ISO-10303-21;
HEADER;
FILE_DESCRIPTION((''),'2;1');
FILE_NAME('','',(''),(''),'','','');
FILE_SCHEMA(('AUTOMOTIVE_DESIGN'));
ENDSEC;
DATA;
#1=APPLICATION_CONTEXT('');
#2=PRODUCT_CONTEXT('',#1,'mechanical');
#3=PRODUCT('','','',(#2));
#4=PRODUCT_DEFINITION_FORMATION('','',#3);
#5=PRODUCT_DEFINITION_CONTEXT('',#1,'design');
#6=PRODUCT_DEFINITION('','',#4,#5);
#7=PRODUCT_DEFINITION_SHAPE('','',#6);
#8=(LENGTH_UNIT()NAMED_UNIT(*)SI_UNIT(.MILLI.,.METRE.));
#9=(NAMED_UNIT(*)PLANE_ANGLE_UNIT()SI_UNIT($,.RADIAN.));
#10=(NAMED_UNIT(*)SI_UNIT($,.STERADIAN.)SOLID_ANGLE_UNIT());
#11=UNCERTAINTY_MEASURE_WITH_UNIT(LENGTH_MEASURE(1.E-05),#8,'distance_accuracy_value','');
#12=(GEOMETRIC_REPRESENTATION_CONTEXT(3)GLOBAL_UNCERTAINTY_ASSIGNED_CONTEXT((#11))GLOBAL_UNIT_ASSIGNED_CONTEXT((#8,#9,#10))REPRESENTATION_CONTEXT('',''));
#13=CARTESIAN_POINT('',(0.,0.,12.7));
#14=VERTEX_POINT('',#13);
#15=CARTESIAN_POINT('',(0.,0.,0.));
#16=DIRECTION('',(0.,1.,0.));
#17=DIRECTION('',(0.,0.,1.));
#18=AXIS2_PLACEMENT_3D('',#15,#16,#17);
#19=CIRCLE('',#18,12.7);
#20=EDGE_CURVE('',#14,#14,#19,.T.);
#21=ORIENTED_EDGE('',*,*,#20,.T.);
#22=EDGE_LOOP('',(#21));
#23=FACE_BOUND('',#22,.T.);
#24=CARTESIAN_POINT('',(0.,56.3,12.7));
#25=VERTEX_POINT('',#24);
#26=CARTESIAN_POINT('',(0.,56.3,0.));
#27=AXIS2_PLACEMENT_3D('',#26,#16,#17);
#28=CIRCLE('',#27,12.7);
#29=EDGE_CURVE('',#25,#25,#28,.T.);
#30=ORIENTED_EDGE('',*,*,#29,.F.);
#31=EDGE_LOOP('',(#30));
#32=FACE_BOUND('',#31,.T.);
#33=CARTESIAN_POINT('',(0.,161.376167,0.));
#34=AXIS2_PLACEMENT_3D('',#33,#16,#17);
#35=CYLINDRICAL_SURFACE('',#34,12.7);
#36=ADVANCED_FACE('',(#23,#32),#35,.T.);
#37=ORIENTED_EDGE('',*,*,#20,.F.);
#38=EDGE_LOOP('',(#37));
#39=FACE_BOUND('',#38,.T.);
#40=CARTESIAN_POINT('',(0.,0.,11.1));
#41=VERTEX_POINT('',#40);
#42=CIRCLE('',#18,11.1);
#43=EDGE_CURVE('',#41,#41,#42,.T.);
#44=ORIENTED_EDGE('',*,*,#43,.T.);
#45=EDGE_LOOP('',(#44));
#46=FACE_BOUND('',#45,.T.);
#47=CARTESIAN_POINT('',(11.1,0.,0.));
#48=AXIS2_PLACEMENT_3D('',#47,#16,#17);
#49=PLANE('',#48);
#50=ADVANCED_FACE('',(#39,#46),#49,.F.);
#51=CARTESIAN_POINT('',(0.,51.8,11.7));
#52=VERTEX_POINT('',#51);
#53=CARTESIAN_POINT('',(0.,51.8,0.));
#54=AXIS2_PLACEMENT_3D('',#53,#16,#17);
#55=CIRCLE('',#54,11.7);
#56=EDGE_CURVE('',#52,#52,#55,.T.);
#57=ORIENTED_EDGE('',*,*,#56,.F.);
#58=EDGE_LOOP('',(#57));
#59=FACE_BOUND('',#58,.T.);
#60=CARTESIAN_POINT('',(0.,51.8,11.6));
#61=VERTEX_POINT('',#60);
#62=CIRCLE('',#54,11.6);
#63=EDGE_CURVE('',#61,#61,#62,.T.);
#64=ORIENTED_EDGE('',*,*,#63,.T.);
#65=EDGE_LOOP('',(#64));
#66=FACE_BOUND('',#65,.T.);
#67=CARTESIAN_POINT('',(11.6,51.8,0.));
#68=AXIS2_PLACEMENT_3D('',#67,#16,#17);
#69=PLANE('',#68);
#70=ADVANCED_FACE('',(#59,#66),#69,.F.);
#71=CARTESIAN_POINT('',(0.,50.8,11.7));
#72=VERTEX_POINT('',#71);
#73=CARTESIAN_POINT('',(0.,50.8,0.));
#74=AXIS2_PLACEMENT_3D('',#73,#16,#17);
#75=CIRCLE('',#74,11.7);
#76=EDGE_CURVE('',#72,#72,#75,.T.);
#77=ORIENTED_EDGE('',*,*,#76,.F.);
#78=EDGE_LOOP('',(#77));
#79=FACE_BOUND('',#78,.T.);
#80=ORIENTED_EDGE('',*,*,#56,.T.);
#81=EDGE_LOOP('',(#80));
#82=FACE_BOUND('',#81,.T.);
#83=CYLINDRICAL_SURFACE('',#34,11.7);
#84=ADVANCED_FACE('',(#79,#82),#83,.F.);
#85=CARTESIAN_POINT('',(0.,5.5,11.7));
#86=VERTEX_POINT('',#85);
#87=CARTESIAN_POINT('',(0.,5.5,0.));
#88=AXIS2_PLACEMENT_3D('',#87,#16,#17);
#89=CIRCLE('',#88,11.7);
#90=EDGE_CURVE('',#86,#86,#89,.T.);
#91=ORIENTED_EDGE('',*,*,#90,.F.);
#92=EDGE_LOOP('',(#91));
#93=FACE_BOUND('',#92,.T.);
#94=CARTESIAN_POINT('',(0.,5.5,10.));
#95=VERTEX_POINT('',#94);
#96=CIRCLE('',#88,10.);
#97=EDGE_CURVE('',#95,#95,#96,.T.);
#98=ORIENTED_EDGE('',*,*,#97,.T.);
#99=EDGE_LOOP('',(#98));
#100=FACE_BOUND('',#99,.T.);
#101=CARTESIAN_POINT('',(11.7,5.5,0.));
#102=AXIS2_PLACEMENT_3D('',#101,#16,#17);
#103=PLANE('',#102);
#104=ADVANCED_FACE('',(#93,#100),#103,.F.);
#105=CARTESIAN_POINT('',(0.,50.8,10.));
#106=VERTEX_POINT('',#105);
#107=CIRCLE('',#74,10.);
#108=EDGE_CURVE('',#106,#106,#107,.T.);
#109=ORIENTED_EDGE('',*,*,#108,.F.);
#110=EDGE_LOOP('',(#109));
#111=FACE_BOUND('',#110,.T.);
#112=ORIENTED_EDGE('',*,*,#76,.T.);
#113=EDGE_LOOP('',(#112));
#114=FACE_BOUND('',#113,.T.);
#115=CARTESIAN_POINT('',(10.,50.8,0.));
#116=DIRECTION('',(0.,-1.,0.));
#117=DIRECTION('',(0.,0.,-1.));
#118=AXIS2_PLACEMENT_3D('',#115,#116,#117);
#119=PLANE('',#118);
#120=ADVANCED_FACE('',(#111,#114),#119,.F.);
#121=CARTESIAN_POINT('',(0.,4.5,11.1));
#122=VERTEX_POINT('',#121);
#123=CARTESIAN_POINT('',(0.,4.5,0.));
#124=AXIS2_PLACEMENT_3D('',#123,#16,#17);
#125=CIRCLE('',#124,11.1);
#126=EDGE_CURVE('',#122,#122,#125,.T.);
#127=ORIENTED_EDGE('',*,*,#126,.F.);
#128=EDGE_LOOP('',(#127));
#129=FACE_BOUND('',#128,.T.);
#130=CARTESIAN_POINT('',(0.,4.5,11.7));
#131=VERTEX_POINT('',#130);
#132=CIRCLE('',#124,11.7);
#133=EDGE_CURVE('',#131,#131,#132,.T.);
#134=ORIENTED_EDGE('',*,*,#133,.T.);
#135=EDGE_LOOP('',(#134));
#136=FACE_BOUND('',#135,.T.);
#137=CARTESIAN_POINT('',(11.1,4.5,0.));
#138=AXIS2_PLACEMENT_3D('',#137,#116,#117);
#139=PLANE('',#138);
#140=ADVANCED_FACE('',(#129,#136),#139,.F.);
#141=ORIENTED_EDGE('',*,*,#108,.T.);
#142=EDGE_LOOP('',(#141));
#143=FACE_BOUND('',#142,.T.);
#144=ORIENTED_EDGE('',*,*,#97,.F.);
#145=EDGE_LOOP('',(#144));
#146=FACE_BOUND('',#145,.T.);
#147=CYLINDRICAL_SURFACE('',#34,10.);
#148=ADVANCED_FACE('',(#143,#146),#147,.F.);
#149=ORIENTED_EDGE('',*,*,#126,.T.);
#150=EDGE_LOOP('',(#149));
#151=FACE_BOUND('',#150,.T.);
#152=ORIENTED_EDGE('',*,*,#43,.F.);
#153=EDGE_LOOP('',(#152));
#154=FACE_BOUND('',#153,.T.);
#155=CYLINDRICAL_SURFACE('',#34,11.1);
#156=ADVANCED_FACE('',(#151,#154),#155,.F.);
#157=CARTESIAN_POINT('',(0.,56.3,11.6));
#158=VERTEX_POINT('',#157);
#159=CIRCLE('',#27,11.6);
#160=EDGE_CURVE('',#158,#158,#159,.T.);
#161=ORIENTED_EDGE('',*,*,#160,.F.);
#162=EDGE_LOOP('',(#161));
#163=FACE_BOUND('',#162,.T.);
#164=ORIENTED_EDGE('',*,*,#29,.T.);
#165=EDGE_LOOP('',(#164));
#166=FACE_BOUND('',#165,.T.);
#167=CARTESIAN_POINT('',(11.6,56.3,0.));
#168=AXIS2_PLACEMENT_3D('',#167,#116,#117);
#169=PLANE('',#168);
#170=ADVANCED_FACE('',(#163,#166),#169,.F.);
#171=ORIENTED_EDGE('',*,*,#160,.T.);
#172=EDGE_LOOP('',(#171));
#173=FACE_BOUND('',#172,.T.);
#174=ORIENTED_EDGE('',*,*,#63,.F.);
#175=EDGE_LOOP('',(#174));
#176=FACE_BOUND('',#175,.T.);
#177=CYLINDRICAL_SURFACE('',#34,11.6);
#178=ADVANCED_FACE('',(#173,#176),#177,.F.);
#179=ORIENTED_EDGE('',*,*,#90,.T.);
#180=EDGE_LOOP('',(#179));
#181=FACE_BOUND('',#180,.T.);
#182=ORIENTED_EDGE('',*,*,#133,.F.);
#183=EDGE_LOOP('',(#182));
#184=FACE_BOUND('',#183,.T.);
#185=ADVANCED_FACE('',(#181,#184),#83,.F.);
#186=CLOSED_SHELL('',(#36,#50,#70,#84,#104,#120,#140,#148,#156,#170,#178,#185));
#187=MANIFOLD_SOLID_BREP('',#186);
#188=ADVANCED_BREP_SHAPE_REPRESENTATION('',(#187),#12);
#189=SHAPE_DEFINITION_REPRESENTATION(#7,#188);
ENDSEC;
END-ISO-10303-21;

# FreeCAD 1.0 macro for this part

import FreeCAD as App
import Part
import Sketcher


def add_polygon(sketch, points):
    """Adds a closed chain of lines whose ends are joined by coincident constraints."""
    first, n = sketch.GeometryCount, len(points)
    for a, b in zip(points, points[1:] + points[:1]):
        sketch.addGeometry(Part.LineSegment(App.Vector(*a, 0), App.Vector(*b, 0)), False)
    for i in range(n):
        sketch.addConstraint(Sketcher.Constraint("Coincident", first + i, 2, first + (i + 1) % n, 1))

doc = App.newDocument("Part")
body = doc.addObject("PartDesign::Body", "Body")

sketch1 = doc.addObject("Sketcher::SketchObject", "Sketch")
body.addObject(sketch1)
sketch1.AttachmentSupport = (doc.XY_Plane, [""])
sketch1.MapMode = "FlatFace"
add_polygon(sketch1, [(11.1, 4.5), (11.1, 0), (12.7, 0), (12.7, 56.3), (11.6, 56.3), (11.6, 51.8), (11.7, 51.8), (11.7, 50.8), (10, 50.8), (10, 5.5), (11.7, 5.5), (11.7, 4.5)])
sketch1.addConstraint([
    Sketcher.Constraint("Vertical", 0),
    Sketcher.Constraint("Horizontal", 1),
    Sketcher.Constraint("Vertical", 2),
    Sketcher.Constraint("Horizontal", 3),
    Sketcher.Constraint("Vertical", 4),
    Sketcher.Constraint("Horizontal", 5),
    Sketcher.Constraint("Vertical", 6),
    Sketcher.Constraint("Horizontal", 7),
    Sketcher.Constraint("Vertical", 8),
    Sketcher.Constraint("Horizontal", 9),
    Sketcher.Constraint("Vertical", 10),
    Sketcher.Constraint("Horizontal", 11),
    Sketcher.Constraint("PointOnObject", 0, 2, -1),
    Sketcher.Constraint("Vertical", 6, 2, 9, 2),
    Sketcher.Constraint("Equal", 0, 4),
    Sketcher.Constraint("Equal", 6, 10),
    Sketcher.Constraint("DistanceY", 6, 2, 6, 1, 1.0),
    Sketcher.Constraint("DistanceX", 1, 1, 1, 2, 1.6),
    Sketcher.Constraint("DistanceX", 3, 2, 3, 1, 1.1),
    Sketcher.Constraint("DistanceX", 5, 1, 5, 2, 0.1),
    Sketcher.Constraint("DistanceX", 7, 2, 7, 1, 1.7),
    Sketcher.Constraint("DistanceY", 0, 2, 0, 1, 4.5),
    Sketcher.Constraint("DistanceY", 2, 1, 2, 2, 56.3),
    Sketcher.Constraint("DistanceX", -1, 1, 7, 2, 10.0),
])
revolution = doc.addObject("PartDesign::Revolution", "Revolution")
body.addObject(revolution)
revolution.Profile = sketch1
revolution.ReferenceAxis = (sketch1, ["V_Axis"])
revolution.Angle = 360

doc.recompute()
